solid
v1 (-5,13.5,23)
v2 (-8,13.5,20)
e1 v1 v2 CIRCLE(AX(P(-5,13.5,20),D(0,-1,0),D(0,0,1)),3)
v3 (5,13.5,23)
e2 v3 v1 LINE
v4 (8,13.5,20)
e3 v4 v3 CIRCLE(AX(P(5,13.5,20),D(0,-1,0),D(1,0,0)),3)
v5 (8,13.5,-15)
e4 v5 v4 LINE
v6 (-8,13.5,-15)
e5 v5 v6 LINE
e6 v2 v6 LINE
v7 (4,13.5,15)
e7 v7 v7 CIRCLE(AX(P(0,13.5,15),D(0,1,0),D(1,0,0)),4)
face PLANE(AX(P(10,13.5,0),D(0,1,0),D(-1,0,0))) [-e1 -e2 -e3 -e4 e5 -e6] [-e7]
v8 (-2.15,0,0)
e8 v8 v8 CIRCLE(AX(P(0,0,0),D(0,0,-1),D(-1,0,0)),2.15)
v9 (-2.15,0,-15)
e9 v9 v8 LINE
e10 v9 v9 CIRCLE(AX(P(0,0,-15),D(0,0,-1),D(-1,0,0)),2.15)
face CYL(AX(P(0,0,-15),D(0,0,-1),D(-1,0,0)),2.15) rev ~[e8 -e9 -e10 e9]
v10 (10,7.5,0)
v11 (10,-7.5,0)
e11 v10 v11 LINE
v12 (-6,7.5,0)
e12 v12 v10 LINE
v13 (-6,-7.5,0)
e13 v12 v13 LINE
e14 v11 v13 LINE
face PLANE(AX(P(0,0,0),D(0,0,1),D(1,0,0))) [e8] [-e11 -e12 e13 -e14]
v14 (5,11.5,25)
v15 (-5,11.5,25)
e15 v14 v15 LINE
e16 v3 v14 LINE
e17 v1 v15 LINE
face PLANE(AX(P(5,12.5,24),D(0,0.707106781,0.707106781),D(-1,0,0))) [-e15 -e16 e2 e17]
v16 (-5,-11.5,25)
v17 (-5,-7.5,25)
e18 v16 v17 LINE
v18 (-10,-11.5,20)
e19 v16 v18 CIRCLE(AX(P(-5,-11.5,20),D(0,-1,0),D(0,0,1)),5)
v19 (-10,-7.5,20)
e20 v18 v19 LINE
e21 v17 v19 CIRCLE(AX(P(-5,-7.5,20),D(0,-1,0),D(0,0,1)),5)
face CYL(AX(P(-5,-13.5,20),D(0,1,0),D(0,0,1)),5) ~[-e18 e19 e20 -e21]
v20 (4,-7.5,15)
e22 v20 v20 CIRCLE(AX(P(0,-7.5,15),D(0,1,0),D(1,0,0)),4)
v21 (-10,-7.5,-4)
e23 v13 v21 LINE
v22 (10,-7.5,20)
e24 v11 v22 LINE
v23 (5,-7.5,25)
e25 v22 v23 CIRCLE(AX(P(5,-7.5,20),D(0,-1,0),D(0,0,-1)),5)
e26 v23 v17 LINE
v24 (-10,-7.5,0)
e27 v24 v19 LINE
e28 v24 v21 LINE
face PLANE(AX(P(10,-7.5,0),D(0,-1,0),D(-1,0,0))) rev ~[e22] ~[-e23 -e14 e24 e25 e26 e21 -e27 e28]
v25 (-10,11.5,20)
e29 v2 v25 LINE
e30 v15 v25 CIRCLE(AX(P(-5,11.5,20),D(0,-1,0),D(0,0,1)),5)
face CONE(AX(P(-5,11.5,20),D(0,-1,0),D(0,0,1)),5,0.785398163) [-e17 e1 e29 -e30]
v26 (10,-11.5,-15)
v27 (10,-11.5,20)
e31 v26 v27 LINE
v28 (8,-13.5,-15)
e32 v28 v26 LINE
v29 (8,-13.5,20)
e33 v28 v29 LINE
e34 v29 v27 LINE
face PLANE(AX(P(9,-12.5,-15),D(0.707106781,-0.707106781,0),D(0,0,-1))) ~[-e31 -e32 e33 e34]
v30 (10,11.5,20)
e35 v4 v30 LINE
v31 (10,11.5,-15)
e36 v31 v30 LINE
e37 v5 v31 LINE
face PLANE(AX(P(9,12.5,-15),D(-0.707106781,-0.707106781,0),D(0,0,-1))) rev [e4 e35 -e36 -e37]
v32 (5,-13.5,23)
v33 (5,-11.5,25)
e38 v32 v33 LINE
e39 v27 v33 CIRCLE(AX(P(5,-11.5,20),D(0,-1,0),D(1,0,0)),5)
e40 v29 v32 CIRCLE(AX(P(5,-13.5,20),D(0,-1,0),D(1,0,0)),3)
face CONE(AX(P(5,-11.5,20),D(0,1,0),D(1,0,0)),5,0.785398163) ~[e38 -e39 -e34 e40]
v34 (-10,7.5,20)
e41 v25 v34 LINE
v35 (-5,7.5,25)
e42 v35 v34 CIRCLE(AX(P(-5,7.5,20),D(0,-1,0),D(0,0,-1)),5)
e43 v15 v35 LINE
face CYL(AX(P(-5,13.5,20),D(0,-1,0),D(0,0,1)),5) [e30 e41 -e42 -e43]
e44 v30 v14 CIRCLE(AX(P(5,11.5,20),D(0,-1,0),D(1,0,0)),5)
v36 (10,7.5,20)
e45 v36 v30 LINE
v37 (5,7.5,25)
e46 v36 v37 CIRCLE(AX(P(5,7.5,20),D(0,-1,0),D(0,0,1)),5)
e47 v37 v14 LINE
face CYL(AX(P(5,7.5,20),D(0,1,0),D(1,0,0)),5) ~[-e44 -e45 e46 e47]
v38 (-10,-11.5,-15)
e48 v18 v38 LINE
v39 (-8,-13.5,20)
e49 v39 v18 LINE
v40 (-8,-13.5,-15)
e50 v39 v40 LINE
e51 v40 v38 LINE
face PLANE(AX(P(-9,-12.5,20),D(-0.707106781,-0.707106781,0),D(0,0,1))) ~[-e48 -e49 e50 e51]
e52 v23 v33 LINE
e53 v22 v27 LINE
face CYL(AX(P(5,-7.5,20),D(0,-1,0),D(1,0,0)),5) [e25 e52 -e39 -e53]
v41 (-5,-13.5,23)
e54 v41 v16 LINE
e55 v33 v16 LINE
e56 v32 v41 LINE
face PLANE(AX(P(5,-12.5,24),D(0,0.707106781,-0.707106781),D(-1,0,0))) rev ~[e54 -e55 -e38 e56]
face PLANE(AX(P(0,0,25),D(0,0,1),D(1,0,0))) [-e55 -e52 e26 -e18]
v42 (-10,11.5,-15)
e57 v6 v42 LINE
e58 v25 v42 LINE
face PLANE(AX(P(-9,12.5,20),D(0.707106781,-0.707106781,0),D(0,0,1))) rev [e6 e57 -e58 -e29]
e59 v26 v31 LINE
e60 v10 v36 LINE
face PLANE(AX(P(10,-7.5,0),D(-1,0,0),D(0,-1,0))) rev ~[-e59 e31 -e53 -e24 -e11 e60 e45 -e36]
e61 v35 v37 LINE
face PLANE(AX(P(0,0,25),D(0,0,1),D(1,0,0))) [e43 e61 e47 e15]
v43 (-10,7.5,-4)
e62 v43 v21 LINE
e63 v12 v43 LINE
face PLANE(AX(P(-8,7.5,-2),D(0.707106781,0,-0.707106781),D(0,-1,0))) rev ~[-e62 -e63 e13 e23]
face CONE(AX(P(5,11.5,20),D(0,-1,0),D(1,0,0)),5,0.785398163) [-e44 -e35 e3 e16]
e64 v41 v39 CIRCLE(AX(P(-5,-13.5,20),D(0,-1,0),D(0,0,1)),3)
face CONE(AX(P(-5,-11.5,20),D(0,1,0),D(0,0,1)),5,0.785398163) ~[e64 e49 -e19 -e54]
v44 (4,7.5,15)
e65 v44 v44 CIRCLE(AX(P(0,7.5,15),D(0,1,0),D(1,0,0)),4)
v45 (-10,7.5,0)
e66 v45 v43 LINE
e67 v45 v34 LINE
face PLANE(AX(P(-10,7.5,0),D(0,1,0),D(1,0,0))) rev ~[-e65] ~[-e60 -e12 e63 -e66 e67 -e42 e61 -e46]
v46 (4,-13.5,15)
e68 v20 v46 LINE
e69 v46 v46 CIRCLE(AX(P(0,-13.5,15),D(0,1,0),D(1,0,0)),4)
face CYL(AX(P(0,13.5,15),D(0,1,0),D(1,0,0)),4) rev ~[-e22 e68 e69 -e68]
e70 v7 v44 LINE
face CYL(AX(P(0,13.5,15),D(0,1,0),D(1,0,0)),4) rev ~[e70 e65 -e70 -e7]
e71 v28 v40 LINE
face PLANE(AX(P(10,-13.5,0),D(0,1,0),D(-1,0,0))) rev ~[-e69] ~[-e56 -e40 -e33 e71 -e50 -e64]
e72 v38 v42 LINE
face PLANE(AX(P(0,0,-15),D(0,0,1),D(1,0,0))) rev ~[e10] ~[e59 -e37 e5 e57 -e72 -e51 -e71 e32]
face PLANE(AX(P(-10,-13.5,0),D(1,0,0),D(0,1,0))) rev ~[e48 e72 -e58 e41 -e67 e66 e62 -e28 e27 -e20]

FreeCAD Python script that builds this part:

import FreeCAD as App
import Part
import Sketcher
Q = App.Units.Quantity


def edges_at(feature, points):
    """Names of the edges that pass closest to the given points."""
    edges = feature.Shape.Edges
    near = lambda p: min(range(len(edges)), key=lambda i: edges[i].distToShape(Part.Vertex(*p))[0])
    return sorted({f"Edge{near(p) + 1}" for p in points})

doc = App.newDocument("Part")
params = doc.addObject("Spreadsheet::Sheet", "Params")
for row, (alias, value) in enumerate([
    ("sketch1_width", "20 mm"),
    ("sketch1_height", "27 mm"),
    ("pad1_length", "15 mm"),
    ("sketch2_width", "20 mm"),
    ("sketch2_height", "6 mm"),
    ("pad2_length", "25 mm"),
    ("sketch3_diameter", "8 mm"),
    ("fillet_radius", "5 mm"),
    ("sketch4_diameter", "4.3 mm"),
    ("chamfer_size", "2 mm"),
    ("chamfer2_size", "4 mm"),
], start=1):
    params.set(f"A{row}", alias)
    params.set(f"B{row}", "=" + value)
    params.setAlias(f"B{row}", alias)

body = doc.addObject("PartDesign::Body", "Body")

sketch1 = body.newObject("Sketcher::SketchObject", "Sketch")
sketch1.AttachmentSupport = (doc.getObject("XY_Plane"), [""])
sketch1.MapMode = "FlatFace"
sketch1.addGeometry([
    Part.LineSegment(App.Vector(10, -13.5, 0), App.Vector(10, 13.5, 0)),
    Part.LineSegment(App.Vector(10, 13.5, 0), App.Vector(-10, 13.5, 0)),
    Part.LineSegment(App.Vector(-10, 13.5, 0), App.Vector(-10, -13.5, 0)),
    Part.LineSegment(App.Vector(-10, -13.5, 0), App.Vector(10, -13.5, 0)),
], False)
sketch1.addConstraint([
    Sketcher.Constraint("Coincident", 0, 2, 1, 1),
    Sketcher.Constraint("Coincident", 1, 2, 2, 1),
    Sketcher.Constraint("Coincident", 2, 2, 3, 1),
    Sketcher.Constraint("Coincident", 3, 2, 0, 1),
    Sketcher.Constraint("Vertical", 0),
    Sketcher.Constraint("Horizontal", 1),
    Sketcher.Constraint("Vertical", 2),
    Sketcher.Constraint("Horizontal", 3),
    Sketcher.Constraint("Symmetric", 0, 2, 2, 2, -1, 1),
    Sketcher.Constraint("DistanceX", 1, 2, 1, 1, Q("20 mm")),
    Sketcher.Constraint("DistanceY", 0, 1, 0, 2, Q("27 mm")),
])
sketch1.setExpression("Constraints[9]", "Params.sketch1_width")
sketch1.setExpression("Constraints[10]", "Params.sketch1_height")
pad1 = body.newObject("PartDesign::Pad", "Pad")
pad1.Profile = sketch1
pad1.setExpression("Length", "Params.pad1_length")
pad1.Reversed = True

sketch2 = body.newObject("Sketcher::SketchObject", "Sketch001")
sketch2.AttachmentSupport = (doc.getObject("XY_Plane"), [""])
sketch2.MapMode = "FlatFace"
sketch2.addGeometry([
    Part.LineSegment(App.Vector(10, -13.5, 0), App.Vector(10, -7.5, 0)),
    Part.LineSegment(App.Vector(10, -7.5, 0), App.Vector(-10, -7.5, 0)),
    Part.LineSegment(App.Vector(-10, -7.5, 0), App.Vector(-10, -13.5, 0)),
    Part.LineSegment(App.Vector(-10, -13.5, 0), App.Vector(10, -13.5, 0)),
    Part.LineSegment(App.Vector(-10, 7.5, 0), App.Vector(10, 7.5, 0)),
    Part.LineSegment(App.Vector(10, 7.5, 0), App.Vector(10, 13.5, 0)),
    Part.LineSegment(App.Vector(10, 13.5, 0), App.Vector(-10, 13.5, 0)),
    Part.LineSegment(App.Vector(-10, 13.5, 0), App.Vector(-10, 7.5, 0)),
], False)
sketch2.addConstraint([
    Sketcher.Constraint("Coincident", 0, 2, 1, 1),
    Sketcher.Constraint("Coincident", 1, 2, 2, 1),
    Sketcher.Constraint("Coincident", 2, 2, 3, 1),
    Sketcher.Constraint("Coincident", 3, 2, 0, 1),
    Sketcher.Constraint("Coincident", 4, 2, 5, 1),
    Sketcher.Constraint("Coincident", 5, 2, 6, 1),
    Sketcher.Constraint("Coincident", 6, 2, 7, 1),
    Sketcher.Constraint("Coincident", 7, 2, 4, 1),
    Sketcher.Constraint("Vertical", 0),
    Sketcher.Constraint("Horizontal", 1),
    Sketcher.Constraint("Vertical", 2),
    Sketcher.Constraint("Horizontal", 3),
    Sketcher.Constraint("Horizontal", 4),
    Sketcher.Constraint("Vertical", 5),
    Sketcher.Constraint("Horizontal", 6),
    Sketcher.Constraint("Vertical", 7),
    Sketcher.Constraint("Symmetric", 1, 2, 4, 2, -1, 1),
    Sketcher.Constraint("Symmetric", 3, 2, 6, 2, -1, 1),
    Sketcher.Constraint("Vertical", 3, 2, 4, 2),
    Sketcher.Constraint("DistanceX", 1, 2, 1, 1, Q("20 mm")),
    Sketcher.Constraint("DistanceY", 0, 1, 0, 2, Q("6 mm")),
    Sketcher.Constraint("DistanceY", 0, 2, 4, 2, Q("15 mm")),
])
sketch2.setExpression("Constraints[19]", "Params.sketch2_width")
sketch2.setExpression("Constraints[20]", "Params.sketch2_height")
pad2 = body.newObject("PartDesign::Pad", "Pad001")
pad2.Profile = sketch2
pad2.setExpression("Length", "Params.pad2_length")

sketch3 = body.newObject("Sketcher::SketchObject", "Sketch002")
sketch3.AttachmentSupport = (doc.getObject("XZ_Plane"), [""])
sketch3.MapMode = "FlatFace"
sketch3.AttachmentOffset = App.Placement(App.Vector(0, 0, -13.5), App.Rotation())
sketch3.addGeometry(Part.Circle(App.Vector(0, 15, 0), App.Vector(0, 0, 1), 4), False)
sketch3.addConstraint([
    Sketcher.Constraint("PointOnObject", 0, 3, -2),
    Sketcher.Constraint("Diameter", 0, Q("8 mm")),
    Sketcher.Constraint("DistanceY", -1, 1, 0, 3, Q("15 mm")),
])
sketch3.setExpression("Constraints[1]", "Params.sketch3_diameter")
pocket1 = body.newObject("PartDesign::Pocket", "Pocket")
pocket1.Profile = sketch3
pocket1.Type = "ThroughAll"
pocket1.Reversed = True
doc.recompute()

fillet = body.newObject("PartDesign::Fillet", "Fillet")
fillet.Base = (pocket1, edges_at(pocket1, [
    (-10, 10.5, 25),
    (10, 10.5, 25),
    (-10, -10.5, 25),
    (10, -10.5, 25),
]))
fillet.setExpression("Radius", "Params.fillet_radius")

sketch4 = body.newObject("Sketcher::SketchObject", "Sketch003")
sketch4.AttachmentSupport = (doc.getObject("XY_Plane"), [""])
sketch4.MapMode = "FlatFace"
sketch4.AttachmentOffset = App.Placement(App.Vector(0, 0, -15), App.Rotation())
sketch4.addGeometry(Part.Circle(App.Vector(0, 0, 0), App.Vector(0, 0, 1), 2.15), False)
sketch4.addConstraint([
    Sketcher.Constraint("Coincident", 0, 3, -1, 1),
    Sketcher.Constraint("Diameter", 0, Q("4.3 mm")),
])
sketch4.setExpression("Constraints[1]", "Params.sketch4_diameter")
pocket2 = body.newObject("PartDesign::Pocket", "Pocket001")
pocket2.Profile = sketch4
pocket2.Type = "ThroughAll"
pocket2.Reversed = True
doc.recompute()

chamfer = body.newObject("PartDesign::Chamfer", "Chamfer")
chamfer.Base = (pocket2, edges_at(pocket2, [
    (8.536, 13.5, 23.535),
    (0, 13.5, 25),
    (-8.536, 13.5, 23.535),
    (8.536, -13.5, 23.535),
    (0, -13.5, 25),
    (-8.536, -13.5, 23.535),
]))
chamfer.setExpression("Size", "Params.chamfer_size")
doc.recompute()

chamfer2 = body.newObject("PartDesign::Chamfer", "Chamfer001")
chamfer2.Base = (chamfer, edges_at(chamfer, [(-10, 0, 0)]))
chamfer2.setExpression("Size", "Params.chamfer2_size")

doc.recompute()
